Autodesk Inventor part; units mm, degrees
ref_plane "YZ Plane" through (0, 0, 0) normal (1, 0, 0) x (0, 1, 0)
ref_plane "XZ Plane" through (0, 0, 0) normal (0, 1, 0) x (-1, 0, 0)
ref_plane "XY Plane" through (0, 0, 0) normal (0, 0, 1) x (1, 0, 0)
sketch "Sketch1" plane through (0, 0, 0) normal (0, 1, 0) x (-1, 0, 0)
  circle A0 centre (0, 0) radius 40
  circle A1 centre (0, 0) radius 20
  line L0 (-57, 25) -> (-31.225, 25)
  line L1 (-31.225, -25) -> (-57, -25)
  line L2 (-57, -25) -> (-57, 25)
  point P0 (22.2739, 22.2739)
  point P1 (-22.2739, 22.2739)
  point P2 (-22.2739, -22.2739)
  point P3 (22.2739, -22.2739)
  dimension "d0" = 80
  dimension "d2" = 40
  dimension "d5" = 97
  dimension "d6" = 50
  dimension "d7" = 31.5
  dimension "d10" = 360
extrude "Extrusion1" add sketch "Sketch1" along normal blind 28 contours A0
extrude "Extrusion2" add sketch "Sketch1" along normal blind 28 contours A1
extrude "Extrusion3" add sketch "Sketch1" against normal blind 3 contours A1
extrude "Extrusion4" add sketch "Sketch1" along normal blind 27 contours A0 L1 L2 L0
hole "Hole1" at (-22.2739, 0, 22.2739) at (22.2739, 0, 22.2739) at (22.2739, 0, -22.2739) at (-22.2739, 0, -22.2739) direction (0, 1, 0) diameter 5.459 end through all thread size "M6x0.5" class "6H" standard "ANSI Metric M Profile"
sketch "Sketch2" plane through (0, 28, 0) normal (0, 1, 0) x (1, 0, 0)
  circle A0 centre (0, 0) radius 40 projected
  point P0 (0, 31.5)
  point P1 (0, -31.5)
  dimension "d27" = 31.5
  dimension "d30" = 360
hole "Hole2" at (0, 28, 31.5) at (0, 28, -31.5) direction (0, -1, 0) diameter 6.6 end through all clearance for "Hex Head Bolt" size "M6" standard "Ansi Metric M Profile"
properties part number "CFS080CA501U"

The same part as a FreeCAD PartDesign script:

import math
import FreeCAD as App
import Part
import Sketcher

V = App.Vector
Q = App.Units.Quantity

doc = App.newDocument("Part")
params = doc.addObject("Spreadsheet::Sheet", "Params")
for row, (alias, value) in enumerate([
    ("sketch1_diameter", "80 mm"),
    ("sketch1_diameter2", "40 mm"),
    ("pad1_length", "28 mm"),
    ("sketch2_diameter", "40 mm"),
    ("pad2_length", "28 mm"),
    ("sketch3_diameter", "40 mm"),
    ("pad3_length", "3 mm"),
    ("sketch4_radius", "40 mm"),
    ("sketch4_height", "50 mm"),
    ("pad4_length", "27 mm"),
    ("hole_diameter", "5.459 mm"),
    ("sketch6_diameter", "6.6 mm"),
    ("hole2_diameter", "6.6 mm"),
], start=1):
    params.set(f"A{row}", alias)
    params.set(f"B{row}", "=" + value)
    params.setAlias(f"B{row}", alias)

body = doc.addObject("PartDesign::Body", "Body")

# Sketch on XZ plane
sketch1 = doc.addObject("Sketcher::SketchObject", "Sketch")
body.addObject(sketch1)
sketch1.AttachmentSupport = (doc.XZ_Plane, [""])
sketch1.MapMode = "FlatFace"
sketch1.addGeometry([
    Part.Circle(V(0, 0, 0), V(0, 0, 1), 40),
    Part.Circle(V(0, 0, 0), V(0, 0, 1), 20),
], False)
sketch1.addConstraint([
    Sketcher.Constraint("Coincident", 0, 3, -1, 1),
    Sketcher.Constraint("Coincident", 1, 3, -1, 1),
    Sketcher.Constraint("Diameter", 0, Q("80 mm")),
    Sketcher.Constraint("Diameter", 1, Q("40 mm")),
])
sketch1.setExpression("Constraints[2]", "Params.sketch1_diameter")
sketch1.setExpression("Constraints[3]", "Params.sketch1_diameter2")
pad1 = doc.addObject("PartDesign::Pad", "Pad")
body.addObject(pad1)
pad1.Profile = sketch1
pad1.setExpression("Length", "Params.pad1_length")
pad1.Reversed = True

# Sketch on XZ plane
sketch2 = doc.addObject("Sketcher::SketchObject", "Sketch001")
body.addObject(sketch2)
sketch2.AttachmentSupport = (doc.XZ_Plane, [""])
sketch2.MapMode = "FlatFace"
sketch2.addGeometry(Part.Circle(V(0, 0, 0), V(0, 0, 1), 20), False)
sketch2.addConstraint([
    Sketcher.Constraint("Coincident", 0, 3, -1, 1),
    Sketcher.Constraint("Diameter", 0, Q("40 mm")),
])
sketch2.setExpression("Constraints[1]", "Params.sketch2_diameter")
pad2 = doc.addObject("PartDesign::Pad", "Pad001")
body.addObject(pad2)
pad2.Profile = sketch2
pad2.setExpression("Length", "Params.pad2_length")
pad2.Reversed = True

# Sketch on XZ plane
sketch3 = doc.addObject("Sketcher::SketchObject", "Sketch002")
body.addObject(sketch3)
sketch3.AttachmentSupport = (doc.XZ_Plane, [""])
sketch3.MapMode = "FlatFace"
sketch3.addGeometry(Part.Circle(V(0, 0, 0), V(0, 0, 1), 20), False)
sketch3.addConstraint([
    Sketcher.Constraint("Coincident", 0, 3, -1, 1),
    Sketcher.Constraint("Diameter", 0, Q("40 mm")),
])
sketch3.setExpression("Constraints[1]", "Params.sketch3_diameter")
pad3 = doc.addObject("PartDesign::Pad", "Pad002")
body.addObject(pad3)
pad3.Profile = sketch3
pad3.setExpression("Length", "Params.pad3_length")

# Sketch on XZ plane
sketch4 = doc.addObject("Sketcher::SketchObject", "Sketch003")
body.addObject(sketch4)
sketch4.AttachmentSupport = (doc.XZ_Plane, [""])
sketch4.MapMode = "FlatFace"
sketch4.addGeometry([
    Part.ArcOfCircle(Part.Circle(V(0, 0, 0), V(0, 0, 1), 40), math.radians(-39), math.radians(39)),
    Part.LineSegment(V(31, 25, 0), V(57, 25, 0)),
    Part.LineSegment(V(57, 25, 0), V(57, -25, 0)),
    Part.LineSegment(V(57, -25, 0), V(31, -25, 0)),
], False)
sketch4.addConstraint([
    Sketcher.Constraint("Coincident", 0, 2, 1, 1),
    Sketcher.Constraint("Coincident", 1, 2, 2, 1),
    Sketcher.Constraint("Coincident", 2, 2, 3, 1),
    Sketcher.Constraint("Coincident", 3, 2, 0, 1),
    Sketcher.Constraint("Horizontal", 1),
    Sketcher.Constraint("Vertical", 2),
    Sketcher.Constraint("Horizontal", 3),
    Sketcher.Constraint("Coincident", 0, 3, -1, 1),
    Sketcher.Constraint("Vertical", 0, 2, 3, 2),
    Sketcher.Constraint("Radius", 0, Q("40 mm")),
    Sketcher.Constraint("DistanceY", 2, 2, 2, 1, Q("50 mm")),
    Sketcher.Constraint("DistanceX", -1, 1, 1, 2, Q("57 mm")),
])
sketch4.setExpression("Constraints[9]", "Params.sketch4_radius")
sketch4.setExpression("Constraints[10]", "Params.sketch4_height")
pad4 = doc.addObject("PartDesign::Pad", "Pad003")
body.addObject(pad4)
pad4.Profile = sketch4
pad4.setExpression("Length", "Params.pad4_length")
pad4.Reversed = True

# Sketch on XZ plane
sketch5 = doc.addObject("Sketcher::SketchObject", "Sketch004")
body.addObject(sketch5)
sketch5.AttachmentSupport = (doc.XZ_Plane, [""])
sketch5.MapMode = "FlatFace"
sketch5.addGeometry([
    Part.Circle(V(-22.3, 22.3, 0), V(0, 0, 1), 2.7),
    Part.Circle(V(22.3, 22.3, 0), V(0, 0, 1), 2.7),
    Part.Circle(V(22.3, -22.3, 0), V(0, 0, 1), 2.7),
    Part.Circle(V(-22.3, -22.3, 0), V(0, 0, 1), 2.7),
], False)
sketch5.addConstraint([
    Sketcher.Constraint("Equal", 0, 1),
    Sketcher.Constraint("Equal", 1, 2),
    Sketcher.Constraint("Equal", 2, 3),
    Sketcher.Constraint("Symmetric", 0, 3, 2, 3, -1, 1),
    Sketcher.Constraint("Symmetric", 1, 3, 3, 3, -1, 1),
    Sketcher.Constraint("Symmetric", 0, 3, 1, 3, -2),
    Sketcher.Constraint("Diameter", 0, Q("5.459 mm")),
    Sketcher.Constraint("DistanceX", 0, 3, -1, 1, Q("22.274 mm")),
    Sketcher.Constraint("DistanceY", -1, 1, 0, 3, Q("22.274 mm")),
])
doc.recompute()
hole = doc.addObject("PartDesign::Hole", "Hole")
body.addObject(hole)
hole.Profile = sketch5
hole.ThreadType = "None"
hole.setExpression("Diameter", "Params.hole_diameter")
hole.DepthType = "ThroughAll"

# Sketch on XZ plane
sketch6 = doc.addObject("Sketcher::SketchObject", "Sketch005")
body.addObject(sketch6)
sketch6.AttachmentSupport = (doc.XZ_Plane, [""])
sketch6.MapMode = "FlatFace"
sketch6.AttachmentOffset = App.Placement(V(0, 0, -28), App.Rotation())
sketch6.addGeometry([
    Part.Circle(V(0, 31.5, 0), V(0, 0, 1), 3.3),
    Part.Circle(V(0, -31.5, 0), V(0, 0, 1), 3.3),
], False)
sketch6.addConstraint([
    Sketcher.Constraint("Equal", 0, 1),
    Sketcher.Constraint("Symmetric", 0, 3, 1, 3, -1, 1),
    Sketcher.Constraint("PointOnObject", 0, 3, -2),
    Sketcher.Constraint("Diameter", 0, Q("6.6 mm")),
    Sketcher.Constraint("DistanceY", 1, 3, 0, 3, Q("63 mm")),
])
sketch6.setExpression("Constraints[3]", "Params.sketch6_diameter")
doc.recompute()
hole2 = doc.addObject("PartDesign::Hole", "Hole001")
body.addObject(hole2)
hole2.Profile = sketch6
hole2.ThreadType = "None"
hole2.setExpression("Diameter", "Params.hole2_diameter")
hole2.DepthType = "ThroughAll"
hole2.Reversed = True

doc.recompute()
